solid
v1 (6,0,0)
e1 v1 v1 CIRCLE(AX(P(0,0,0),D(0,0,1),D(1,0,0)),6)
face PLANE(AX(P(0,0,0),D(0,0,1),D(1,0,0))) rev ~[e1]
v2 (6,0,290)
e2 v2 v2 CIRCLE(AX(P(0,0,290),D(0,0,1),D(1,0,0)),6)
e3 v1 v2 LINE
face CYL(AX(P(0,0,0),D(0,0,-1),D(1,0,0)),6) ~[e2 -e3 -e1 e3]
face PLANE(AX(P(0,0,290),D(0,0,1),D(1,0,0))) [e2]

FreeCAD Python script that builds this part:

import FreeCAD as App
import Part
import Sketcher

V = App.Vector
Q = App.Units.Quantity

doc = App.newDocument("Part")
params = doc.addObject("Spreadsheet::Sheet", "Params")
for row, (alias, value) in enumerate([
    ("sketch1_diameter", "12 mm"),
    ("pad1_length", "290 mm"),
], start=1):
    params.set(f"A{row}", alias)
    params.set(f"B{row}", "=" + value)
    params.setAlias(f"B{row}", alias)

body = doc.addObject("PartDesign::Body", "Body")

# Sketch on XY plane
sketch1 = body.newObject("Sketcher::SketchObject", "Sketch")
sketch1.AttachmentSupport = (doc.getObject("XY_Plane"), [""])
sketch1.MapMode = "FlatFace"
sketch1.addGeometry(Part.Circle(V(0, 0, 0), V(0, 0, 1), 6), False)
sketch1.addConstraint(Sketcher.Constraint("Coincident", 0, 3, -1, 1))
sketch1.addConstraint(Sketcher.Constraint("Diameter", 0, Q("12 mm")))
sketch1.setExpression("Constraints[1]", "Params.sketch1_diameter")
pad1 = body.newObject("PartDesign::Pad", "Pad")
pad1.Profile = sketch1
pad1.setExpression("Length", "Params.pad1_length")

doc.recompute()
